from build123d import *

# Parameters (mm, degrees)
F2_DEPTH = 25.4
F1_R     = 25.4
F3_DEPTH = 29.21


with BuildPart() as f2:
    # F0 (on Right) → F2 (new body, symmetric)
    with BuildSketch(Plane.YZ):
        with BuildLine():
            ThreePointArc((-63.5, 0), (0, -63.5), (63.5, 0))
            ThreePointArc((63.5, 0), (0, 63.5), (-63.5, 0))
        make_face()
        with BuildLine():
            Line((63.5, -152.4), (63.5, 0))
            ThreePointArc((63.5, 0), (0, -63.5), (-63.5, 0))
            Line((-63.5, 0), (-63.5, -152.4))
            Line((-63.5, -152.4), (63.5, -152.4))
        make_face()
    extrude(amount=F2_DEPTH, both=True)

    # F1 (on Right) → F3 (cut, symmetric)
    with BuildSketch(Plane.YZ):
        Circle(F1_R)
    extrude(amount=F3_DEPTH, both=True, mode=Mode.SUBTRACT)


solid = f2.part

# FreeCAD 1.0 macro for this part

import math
import FreeCAD as App
import Part
import Sketcher
from FreeCAD import Vector
Q = App.Units.Quantity

doc = App.newDocument("Part")
body = doc.addObject("PartDesign::Body", "Body")

# Sketch on YZ plane
sketch1 = body.newObject("Sketcher::SketchObject", "Sketch")
sketch1.AttachmentSupport = (doc.getObject("YZ_Plane"), [""])
sketch1.MapMode = "FlatFace"
sketch1.addGeometry([
    Part.ArcOfCircle(Part.Circle(Vector(0, 0, 0), Vector(0, 0, 1), 63.5), math.radians(0), math.radians(180)),
    Part.LineSegment(Vector(-63.5, 0, 0), Vector(-63.5, -152.4, 0)),
    Part.LineSegment(Vector(-63.5, -152.4, 0), Vector(63.5, -152.4, 0)),
    Part.LineSegment(Vector(63.5, -152.4, 0), Vector(63.5, 0, 0)),
], False)
sketch1.addConstraint([
    Sketcher.Constraint("Tangent", 0, 2, 1, 1),
    Sketcher.Constraint("Coincident", 1, 2, 2, 1),
    Sketcher.Constraint("Coincident", 2, 2, 3, 1),
    Sketcher.Constraint("Tangent", 3, 2, 0, 1),
    Sketcher.Constraint("Vertical", 1),
    Sketcher.Constraint("Horizontal", 2),
    Sketcher.Constraint("Vertical", 3),
    Sketcher.Constraint("Coincident", 0, 3, -1, 1),
    Sketcher.Constraint("Radius", 0, Q("2.5 in")),
    Sketcher.Constraint("DistanceY", 1, 2, 1, 1, Q("6 in")),
])
pad1 = body.newObject("PartDesign::Pad", "Pad")
pad1.Profile = sketch1
pad1.Length = Q("2 in")
pad1.Midplane = True

# Sketch on YZ plane
sketch2 = body.newObject("Sketcher::SketchObject", "Sketch001")
sketch2.AttachmentSupport = (doc.getObject("YZ_Plane"), [""])
sketch2.MapMode = "FlatFace"
sketch2.addGeometry(Part.Circle(Vector(0, 0, 0), Vector(0, 0, 1), 25.4), False)
sketch2.addConstraint([
    Sketcher.Constraint("Coincident", 0, 3, -1, 1),
    Sketcher.Constraint("Diameter", 0, Q("2 in")),
])
pocket1 = body.newObject("PartDesign::Pocket", "Pocket")
pocket1.Profile = sketch2
pocket1.Length = Q("2.3 in")
pocket1.Midplane = True

doc.recompute()
